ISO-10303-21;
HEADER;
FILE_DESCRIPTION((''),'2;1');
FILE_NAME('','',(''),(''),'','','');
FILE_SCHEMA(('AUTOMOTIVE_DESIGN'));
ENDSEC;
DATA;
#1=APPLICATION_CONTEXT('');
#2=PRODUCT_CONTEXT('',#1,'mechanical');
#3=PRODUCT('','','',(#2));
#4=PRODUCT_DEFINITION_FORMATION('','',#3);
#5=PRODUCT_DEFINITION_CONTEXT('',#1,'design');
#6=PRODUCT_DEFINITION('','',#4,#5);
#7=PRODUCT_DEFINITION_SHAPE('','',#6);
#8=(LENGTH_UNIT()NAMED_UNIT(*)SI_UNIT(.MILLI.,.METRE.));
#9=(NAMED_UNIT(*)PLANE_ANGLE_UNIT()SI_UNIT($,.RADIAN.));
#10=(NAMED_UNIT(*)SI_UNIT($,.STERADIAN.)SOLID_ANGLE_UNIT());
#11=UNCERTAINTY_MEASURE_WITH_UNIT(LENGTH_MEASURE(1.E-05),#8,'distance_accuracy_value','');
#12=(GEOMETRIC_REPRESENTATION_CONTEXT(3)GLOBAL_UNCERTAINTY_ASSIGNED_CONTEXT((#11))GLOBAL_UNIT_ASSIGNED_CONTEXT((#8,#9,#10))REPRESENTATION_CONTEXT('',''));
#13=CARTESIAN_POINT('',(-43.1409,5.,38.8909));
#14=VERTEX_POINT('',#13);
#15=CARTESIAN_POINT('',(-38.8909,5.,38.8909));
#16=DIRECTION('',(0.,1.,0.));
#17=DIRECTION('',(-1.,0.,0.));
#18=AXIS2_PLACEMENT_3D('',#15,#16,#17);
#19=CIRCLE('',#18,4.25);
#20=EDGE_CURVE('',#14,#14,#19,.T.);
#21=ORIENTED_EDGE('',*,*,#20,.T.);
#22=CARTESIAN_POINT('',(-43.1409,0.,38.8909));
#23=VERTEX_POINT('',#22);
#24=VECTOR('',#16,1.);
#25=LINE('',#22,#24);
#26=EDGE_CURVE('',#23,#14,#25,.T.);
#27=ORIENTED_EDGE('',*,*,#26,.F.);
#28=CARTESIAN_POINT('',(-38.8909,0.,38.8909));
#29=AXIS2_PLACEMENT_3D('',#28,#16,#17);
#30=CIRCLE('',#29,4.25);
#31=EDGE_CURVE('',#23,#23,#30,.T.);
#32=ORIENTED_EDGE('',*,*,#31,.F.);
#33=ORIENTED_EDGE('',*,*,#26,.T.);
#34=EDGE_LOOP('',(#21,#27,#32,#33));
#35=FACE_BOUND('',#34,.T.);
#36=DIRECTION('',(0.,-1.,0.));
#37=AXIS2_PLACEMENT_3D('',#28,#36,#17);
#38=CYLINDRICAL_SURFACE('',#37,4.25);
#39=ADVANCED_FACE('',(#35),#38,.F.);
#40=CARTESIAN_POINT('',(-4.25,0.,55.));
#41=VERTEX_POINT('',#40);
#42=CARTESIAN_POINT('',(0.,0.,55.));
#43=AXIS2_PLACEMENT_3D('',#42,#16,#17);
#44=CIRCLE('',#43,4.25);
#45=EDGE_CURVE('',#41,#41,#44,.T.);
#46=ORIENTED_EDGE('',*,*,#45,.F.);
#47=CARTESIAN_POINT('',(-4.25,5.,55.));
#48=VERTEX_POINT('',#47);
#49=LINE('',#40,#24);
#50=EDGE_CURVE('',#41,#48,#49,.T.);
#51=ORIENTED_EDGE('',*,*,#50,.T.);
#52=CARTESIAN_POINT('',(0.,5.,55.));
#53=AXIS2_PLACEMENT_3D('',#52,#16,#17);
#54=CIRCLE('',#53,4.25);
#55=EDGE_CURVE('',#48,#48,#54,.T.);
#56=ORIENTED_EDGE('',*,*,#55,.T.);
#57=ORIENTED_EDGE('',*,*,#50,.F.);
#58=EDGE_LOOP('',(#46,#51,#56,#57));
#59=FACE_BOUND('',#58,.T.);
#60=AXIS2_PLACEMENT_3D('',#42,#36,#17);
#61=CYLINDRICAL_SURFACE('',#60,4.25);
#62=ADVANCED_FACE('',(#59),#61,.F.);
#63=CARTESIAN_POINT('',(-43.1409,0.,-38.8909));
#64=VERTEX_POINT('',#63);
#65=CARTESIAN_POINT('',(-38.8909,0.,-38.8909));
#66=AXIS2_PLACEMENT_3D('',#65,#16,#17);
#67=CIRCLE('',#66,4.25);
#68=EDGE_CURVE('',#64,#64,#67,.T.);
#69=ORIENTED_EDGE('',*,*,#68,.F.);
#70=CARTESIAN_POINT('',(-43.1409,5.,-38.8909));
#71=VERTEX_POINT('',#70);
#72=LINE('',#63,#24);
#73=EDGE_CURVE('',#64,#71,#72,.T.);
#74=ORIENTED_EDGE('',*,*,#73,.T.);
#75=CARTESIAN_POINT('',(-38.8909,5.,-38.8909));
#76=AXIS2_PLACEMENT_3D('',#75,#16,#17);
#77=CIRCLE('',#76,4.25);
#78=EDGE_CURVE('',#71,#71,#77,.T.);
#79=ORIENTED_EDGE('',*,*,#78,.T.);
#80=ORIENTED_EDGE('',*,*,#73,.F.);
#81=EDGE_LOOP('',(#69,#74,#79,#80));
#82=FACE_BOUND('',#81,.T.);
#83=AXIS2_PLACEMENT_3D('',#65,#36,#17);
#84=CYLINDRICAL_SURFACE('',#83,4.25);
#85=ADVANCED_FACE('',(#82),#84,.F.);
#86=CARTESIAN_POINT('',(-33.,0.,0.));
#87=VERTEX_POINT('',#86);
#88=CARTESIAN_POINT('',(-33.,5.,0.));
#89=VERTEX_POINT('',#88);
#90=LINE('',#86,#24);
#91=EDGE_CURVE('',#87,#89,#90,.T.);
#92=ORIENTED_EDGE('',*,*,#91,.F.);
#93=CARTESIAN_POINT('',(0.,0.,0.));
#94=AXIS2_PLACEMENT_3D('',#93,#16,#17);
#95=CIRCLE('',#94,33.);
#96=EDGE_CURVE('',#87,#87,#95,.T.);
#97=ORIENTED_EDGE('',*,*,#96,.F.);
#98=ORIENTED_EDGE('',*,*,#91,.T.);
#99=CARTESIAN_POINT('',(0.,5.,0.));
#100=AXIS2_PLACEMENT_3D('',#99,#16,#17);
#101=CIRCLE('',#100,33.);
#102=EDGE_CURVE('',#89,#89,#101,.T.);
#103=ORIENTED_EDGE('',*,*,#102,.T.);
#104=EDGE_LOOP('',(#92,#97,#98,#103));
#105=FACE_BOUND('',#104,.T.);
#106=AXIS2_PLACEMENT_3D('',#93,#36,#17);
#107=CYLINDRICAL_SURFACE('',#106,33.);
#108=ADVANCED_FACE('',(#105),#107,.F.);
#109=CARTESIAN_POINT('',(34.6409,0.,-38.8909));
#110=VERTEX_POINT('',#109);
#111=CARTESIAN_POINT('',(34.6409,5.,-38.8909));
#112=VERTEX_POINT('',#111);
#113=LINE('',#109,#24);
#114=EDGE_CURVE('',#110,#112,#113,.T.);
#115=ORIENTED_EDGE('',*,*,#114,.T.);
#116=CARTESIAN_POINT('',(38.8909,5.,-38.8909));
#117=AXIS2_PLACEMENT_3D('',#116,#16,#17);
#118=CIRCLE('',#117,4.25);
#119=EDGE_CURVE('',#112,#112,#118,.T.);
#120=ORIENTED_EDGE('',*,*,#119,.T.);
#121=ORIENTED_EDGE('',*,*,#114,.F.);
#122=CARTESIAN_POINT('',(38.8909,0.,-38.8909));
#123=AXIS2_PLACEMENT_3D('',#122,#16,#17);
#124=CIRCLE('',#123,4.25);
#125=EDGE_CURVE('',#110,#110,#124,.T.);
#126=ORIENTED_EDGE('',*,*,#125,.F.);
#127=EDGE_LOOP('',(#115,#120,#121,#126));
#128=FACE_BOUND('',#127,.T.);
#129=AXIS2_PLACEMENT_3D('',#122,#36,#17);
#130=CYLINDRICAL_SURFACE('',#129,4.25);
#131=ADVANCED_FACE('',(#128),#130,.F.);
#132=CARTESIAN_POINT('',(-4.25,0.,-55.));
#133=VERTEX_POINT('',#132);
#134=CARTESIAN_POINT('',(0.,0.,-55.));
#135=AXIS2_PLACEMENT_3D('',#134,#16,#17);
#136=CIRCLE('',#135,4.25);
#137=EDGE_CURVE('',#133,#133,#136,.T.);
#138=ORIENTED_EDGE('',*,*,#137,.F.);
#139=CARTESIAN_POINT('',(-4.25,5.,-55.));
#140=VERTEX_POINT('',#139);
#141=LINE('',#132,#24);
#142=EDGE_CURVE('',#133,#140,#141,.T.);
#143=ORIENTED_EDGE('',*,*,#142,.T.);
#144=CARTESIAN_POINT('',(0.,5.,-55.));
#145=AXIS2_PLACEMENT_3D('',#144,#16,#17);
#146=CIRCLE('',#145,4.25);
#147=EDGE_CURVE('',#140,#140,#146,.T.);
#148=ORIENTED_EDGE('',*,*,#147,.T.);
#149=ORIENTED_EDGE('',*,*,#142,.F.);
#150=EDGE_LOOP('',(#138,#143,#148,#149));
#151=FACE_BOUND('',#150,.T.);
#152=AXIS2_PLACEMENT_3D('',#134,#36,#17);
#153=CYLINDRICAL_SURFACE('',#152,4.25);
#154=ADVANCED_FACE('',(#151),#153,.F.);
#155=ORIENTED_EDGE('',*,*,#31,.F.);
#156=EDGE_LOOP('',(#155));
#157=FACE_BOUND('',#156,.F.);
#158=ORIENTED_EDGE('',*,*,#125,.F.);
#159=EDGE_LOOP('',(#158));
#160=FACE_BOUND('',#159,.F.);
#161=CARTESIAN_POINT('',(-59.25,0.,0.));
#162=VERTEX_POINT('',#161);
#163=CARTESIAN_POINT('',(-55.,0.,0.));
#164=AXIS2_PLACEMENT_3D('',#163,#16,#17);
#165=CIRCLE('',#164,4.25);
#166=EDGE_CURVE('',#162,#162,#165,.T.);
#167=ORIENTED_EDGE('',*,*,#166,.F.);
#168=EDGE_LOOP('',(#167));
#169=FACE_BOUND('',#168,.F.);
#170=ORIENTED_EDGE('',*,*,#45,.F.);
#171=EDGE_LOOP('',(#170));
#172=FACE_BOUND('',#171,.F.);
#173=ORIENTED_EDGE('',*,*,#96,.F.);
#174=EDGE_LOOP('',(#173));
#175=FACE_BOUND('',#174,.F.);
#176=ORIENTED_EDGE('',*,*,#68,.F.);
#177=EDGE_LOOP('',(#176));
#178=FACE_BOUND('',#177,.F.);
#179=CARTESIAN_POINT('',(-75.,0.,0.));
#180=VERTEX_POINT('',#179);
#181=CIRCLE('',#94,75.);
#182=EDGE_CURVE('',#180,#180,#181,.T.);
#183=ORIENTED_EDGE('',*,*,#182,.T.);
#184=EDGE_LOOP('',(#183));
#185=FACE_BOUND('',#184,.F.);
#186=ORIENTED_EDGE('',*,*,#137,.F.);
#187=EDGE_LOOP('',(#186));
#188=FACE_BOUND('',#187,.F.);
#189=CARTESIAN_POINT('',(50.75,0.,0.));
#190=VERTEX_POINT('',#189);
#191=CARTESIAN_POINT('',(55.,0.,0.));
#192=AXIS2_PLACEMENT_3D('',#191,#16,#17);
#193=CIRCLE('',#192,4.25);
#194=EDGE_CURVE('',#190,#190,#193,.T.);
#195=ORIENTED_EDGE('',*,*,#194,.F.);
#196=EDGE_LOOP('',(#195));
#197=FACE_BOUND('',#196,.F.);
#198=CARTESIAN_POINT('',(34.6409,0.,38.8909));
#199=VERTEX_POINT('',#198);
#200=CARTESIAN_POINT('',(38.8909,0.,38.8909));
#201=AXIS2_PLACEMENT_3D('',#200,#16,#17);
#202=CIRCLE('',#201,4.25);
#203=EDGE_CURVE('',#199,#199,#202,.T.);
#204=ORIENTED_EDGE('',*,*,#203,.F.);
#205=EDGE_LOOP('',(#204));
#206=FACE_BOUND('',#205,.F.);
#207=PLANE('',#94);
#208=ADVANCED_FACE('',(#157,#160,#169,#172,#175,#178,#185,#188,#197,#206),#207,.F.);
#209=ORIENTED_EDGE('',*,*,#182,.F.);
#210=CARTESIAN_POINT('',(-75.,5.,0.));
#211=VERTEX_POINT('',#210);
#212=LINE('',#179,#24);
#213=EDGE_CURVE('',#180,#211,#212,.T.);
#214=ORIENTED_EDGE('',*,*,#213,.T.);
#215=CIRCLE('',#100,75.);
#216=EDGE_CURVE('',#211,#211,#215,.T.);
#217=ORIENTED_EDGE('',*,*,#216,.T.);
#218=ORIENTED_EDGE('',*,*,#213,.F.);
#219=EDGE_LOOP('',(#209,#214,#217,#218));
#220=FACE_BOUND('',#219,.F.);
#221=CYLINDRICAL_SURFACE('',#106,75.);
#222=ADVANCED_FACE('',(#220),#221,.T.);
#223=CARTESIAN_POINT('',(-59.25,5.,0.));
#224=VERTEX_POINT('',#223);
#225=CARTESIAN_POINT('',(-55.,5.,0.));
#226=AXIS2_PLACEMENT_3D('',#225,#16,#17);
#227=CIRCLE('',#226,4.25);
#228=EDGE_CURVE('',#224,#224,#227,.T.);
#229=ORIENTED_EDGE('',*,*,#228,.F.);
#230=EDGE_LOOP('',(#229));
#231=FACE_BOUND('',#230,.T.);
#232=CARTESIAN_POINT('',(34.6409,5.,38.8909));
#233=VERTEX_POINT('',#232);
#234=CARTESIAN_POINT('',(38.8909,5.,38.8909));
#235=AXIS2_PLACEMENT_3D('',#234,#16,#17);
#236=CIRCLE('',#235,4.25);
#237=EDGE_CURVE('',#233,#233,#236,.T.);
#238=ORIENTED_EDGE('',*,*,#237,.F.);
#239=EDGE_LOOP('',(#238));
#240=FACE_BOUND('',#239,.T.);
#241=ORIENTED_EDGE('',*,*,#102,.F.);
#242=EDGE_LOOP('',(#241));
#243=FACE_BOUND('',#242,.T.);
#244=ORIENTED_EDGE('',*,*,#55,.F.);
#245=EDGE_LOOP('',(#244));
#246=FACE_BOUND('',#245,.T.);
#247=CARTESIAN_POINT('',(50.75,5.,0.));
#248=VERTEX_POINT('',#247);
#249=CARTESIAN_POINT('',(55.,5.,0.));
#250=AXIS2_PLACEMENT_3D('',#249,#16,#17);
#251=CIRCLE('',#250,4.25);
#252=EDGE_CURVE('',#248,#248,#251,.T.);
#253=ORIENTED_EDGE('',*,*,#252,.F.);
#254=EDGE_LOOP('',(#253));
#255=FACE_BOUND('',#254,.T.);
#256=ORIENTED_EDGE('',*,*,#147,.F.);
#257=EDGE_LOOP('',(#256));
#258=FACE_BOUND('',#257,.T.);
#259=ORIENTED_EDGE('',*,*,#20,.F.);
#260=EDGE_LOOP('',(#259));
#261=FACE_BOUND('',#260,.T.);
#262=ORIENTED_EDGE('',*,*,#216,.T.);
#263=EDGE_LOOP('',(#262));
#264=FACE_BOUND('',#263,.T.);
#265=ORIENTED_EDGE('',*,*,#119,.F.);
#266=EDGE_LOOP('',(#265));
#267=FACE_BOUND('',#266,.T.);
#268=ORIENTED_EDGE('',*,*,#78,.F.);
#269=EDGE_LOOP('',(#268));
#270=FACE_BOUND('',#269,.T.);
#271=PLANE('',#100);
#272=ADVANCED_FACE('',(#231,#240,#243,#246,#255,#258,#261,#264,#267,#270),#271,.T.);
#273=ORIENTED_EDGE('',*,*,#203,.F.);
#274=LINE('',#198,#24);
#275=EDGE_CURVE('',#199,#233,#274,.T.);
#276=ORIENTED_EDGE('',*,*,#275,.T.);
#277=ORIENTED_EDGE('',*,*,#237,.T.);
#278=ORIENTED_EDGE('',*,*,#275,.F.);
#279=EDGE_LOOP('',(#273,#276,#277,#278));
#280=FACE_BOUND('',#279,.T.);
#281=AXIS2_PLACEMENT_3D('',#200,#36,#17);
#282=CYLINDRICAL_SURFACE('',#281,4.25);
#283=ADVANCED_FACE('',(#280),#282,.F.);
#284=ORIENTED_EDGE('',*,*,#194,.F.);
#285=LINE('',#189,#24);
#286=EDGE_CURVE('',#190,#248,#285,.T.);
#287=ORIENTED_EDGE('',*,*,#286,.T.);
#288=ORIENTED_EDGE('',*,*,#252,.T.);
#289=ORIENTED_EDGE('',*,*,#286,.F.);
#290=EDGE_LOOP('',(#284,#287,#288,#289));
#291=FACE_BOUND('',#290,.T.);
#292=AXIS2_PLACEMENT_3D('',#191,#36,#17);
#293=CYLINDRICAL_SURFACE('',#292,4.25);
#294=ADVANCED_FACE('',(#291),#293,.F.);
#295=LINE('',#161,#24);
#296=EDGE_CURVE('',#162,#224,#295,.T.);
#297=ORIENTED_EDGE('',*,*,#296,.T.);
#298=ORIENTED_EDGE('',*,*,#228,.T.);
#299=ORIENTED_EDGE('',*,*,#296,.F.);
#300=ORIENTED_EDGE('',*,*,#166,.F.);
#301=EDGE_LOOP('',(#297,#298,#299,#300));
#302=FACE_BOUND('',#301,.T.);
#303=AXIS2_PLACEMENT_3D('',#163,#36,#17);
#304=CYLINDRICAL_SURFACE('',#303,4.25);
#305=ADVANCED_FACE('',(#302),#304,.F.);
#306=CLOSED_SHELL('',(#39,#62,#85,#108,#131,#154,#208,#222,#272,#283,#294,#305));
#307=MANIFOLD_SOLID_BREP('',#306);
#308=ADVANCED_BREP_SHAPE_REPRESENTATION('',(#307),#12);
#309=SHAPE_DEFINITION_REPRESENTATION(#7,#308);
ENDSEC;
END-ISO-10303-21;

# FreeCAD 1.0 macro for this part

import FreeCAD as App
import Part
import Sketcher
from FreeCAD import Vector
Q = App.Units.Quantity

doc = App.newDocument("Part")
body = doc.addObject("PartDesign::Body", "Body")

sketch1 = body.newObject("Sketcher::SketchObject", "Sketch")
sketch1.AttachmentSupport = (doc.getObject("XZ_Plane"), [""])
sketch1.MapMode = "FlatFace"
sketch1.addGeometry([
    Part.Circle(Vector(0, 0, 0), Vector(0, 0, 1), 75),
    Part.Circle(Vector(38.9, -38.9, 0), Vector(0, 0, 1), 4.2),
    Part.Circle(Vector(0, -55, 0), Vector(0, 0, 1), 4.2),
    Part.Circle(Vector(-38.9, -38.9, 0), Vector(0, 0, 1), 4.2),
    Part.Circle(Vector(55, 0, 0), Vector(0, 0, 1), 4.2),
    Part.Circle(Vector(38.9, 38.9, 0), Vector(0, 0, 1), 4.2),
    Part.Circle(Vector(0, 0, 0), Vector(0, 0, 1), 33),
    Part.Circle(Vector(-55, 0, 0), Vector(0, 0, 1), 4.2),
    Part.Circle(Vector(0, 55, 0), Vector(0, 0, 1), 4.2),
    Part.Circle(Vector(-38.9, 38.9, 0), Vector(0, 0, 1), 4.2),
], False)
sketch1.addConstraint([
    Sketcher.Constraint("Coincident", 0, 3, -1, 1),
    Sketcher.Constraint("Coincident", 6, 3, -1, 1),
    Sketcher.Constraint("Equal", 1, 2),
    Sketcher.Constraint("Equal", 2, 3),
    Sketcher.Constraint("Equal", 3, 4),
    Sketcher.Constraint("Equal", 4, 5),
    Sketcher.Constraint("Equal", 5, 7),
    Sketcher.Constraint("Equal", 7, 8),
    Sketcher.Constraint("Equal", 8, 9),
    Sketcher.Constraint("Symmetric", 3, 3, 5, 3, -1, 1),
    Sketcher.Constraint("Symmetric", 4, 3, 7, 3, -1, 1),
    Sketcher.Constraint("Symmetric", 2, 3, 8, 3, -1, 1),
    Sketcher.Constraint("Symmetric", 1, 3, 9, 3, -1, 1),
    Sketcher.Constraint("Symmetric", 1, 3, 3, 3, -2),
    Sketcher.Constraint("PointOnObject", 2, 3, -2),
    Sketcher.Constraint("PointOnObject", 4, 3, -1),
    Sketcher.Constraint("Diameter", 0, Q("150 mm")),
    Sketcher.Constraint("Diameter", 6, Q("66 mm")),
    Sketcher.Constraint("Diameter", 1, Q("8.5 mm")),
    Sketcher.Constraint("DistanceY", 2, 3, -1, 1, Q("55 mm")),
    Sketcher.Constraint("DistanceX", -1, 1, 4, 3, Q("55 mm")),
    Sketcher.Constraint("DistanceX", -1, 1, 1, 3, Q("38.891 mm")),
    Sketcher.Constraint("DistanceY", 1, 3, -1, 1, Q("38.891 mm")),
])
pad1 = body.newObject("PartDesign::Pad", "Pad")
pad1.Profile = sketch1
pad1.Length = 5
pad1.Reversed = True

doc.recompute()
